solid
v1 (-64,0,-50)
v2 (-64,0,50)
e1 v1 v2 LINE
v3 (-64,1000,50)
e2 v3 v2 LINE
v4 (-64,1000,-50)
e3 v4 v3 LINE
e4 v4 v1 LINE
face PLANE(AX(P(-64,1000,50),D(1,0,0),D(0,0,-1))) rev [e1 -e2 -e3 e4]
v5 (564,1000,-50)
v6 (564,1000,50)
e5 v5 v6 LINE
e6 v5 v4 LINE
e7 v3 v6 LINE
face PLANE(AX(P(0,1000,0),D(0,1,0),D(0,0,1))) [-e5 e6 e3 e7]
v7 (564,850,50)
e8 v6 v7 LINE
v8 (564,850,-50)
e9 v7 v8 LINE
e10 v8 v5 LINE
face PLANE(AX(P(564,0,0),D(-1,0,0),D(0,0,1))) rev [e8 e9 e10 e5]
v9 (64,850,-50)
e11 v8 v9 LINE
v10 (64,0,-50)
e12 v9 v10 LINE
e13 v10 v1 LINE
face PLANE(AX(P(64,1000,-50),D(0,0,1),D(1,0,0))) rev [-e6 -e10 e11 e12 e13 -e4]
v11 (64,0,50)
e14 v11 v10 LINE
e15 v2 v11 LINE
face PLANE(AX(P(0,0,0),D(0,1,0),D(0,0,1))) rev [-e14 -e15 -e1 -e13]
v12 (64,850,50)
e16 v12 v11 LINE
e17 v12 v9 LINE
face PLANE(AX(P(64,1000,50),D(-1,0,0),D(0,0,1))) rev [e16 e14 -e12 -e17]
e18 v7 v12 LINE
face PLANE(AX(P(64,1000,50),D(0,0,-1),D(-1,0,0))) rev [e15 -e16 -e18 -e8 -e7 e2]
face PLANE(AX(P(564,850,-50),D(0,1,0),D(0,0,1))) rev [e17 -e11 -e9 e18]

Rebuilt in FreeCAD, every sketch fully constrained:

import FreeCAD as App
import Part
import Sketcher

V = App.Vector
Q = App.Units.Quantity

doc = App.newDocument("Part")
body = doc.addObject("PartDesign::Body", "Body")

# Sketch on XZ plane
sketch1 = body.newObject("Sketcher::SketchObject", "Sketch")
sketch1.AttachmentSupport = (doc.getObject("XZ_Plane"), [""])
sketch1.MapMode = "FlatFace"
sketch1.addGeometry([
    Part.LineSegment(V(-64, -50, 0), V(-64, 50, 0)),
    Part.LineSegment(V(-64, 50, 0), V(64, 50, 0)),
    Part.LineSegment(V(64, 50, 0), V(64, -50, 0)),
    Part.LineSegment(V(64, -50, 0), V(-64, -50, 0)),
], False)
sketch1.addConstraint([
    Sketcher.Constraint("Coincident", 0, 2, 1, 1),
    Sketcher.Constraint("Coincident", 1, 2, 2, 1),
    Sketcher.Constraint("Coincident", 2, 2, 3, 1),
    Sketcher.Constraint("Coincident", 3, 2, 0, 1),
    Sketcher.Constraint("Vertical", 0),
    Sketcher.Constraint("Horizontal", 1),
    Sketcher.Constraint("Vertical", 2),
    Sketcher.Constraint("Horizontal", 3),
    Sketcher.Constraint("Symmetric", 0, 2, 2, 2, -1, 1),
    Sketcher.Constraint("DistanceX", 1, 1, 1, 2, Q("128 mm")),
    Sketcher.Constraint("DistanceY", 0, 1, 0, 2, Q("100 mm")),
])
pad1 = body.newObject("PartDesign::Pad", "Pad")
pad1.Profile = sketch1
pad1.Length = 1000
pad1.Reversed = True

# Sketch on YZ plane
sketch2 = body.newObject("Sketcher::SketchObject", "Sketch001")
sketch2.AttachmentSupport = (doc.getObject("YZ_Plane"), [""])
sketch2.MapMode = "FlatFace"
sketch2.AttachmentOffset = App.Placement(V(0, 0, 64), App.Rotation())
sketch2.addGeometry([
    Part.LineSegment(V(1000, 50, 0), V(850, 50, 0)),
    Part.LineSegment(V(850, 50, 0), V(850, -50, 0)),
    Part.LineSegment(V(850, -50, 0), V(1000, -50, 0)),
    Part.LineSegment(V(1000, -50, 0), V(1000, 50, 0)),
], False)
sketch2.addConstraint([
    Sketcher.Constraint("Coincident", 0, 2, 1, 1),
    Sketcher.Constraint("Coincident", 1, 2, 2, 1),
    Sketcher.Constraint("Coincident", 2, 2, 3, 1),
    Sketcher.Constraint("Coincident", 3, 2, 0, 1),
    Sketcher.Constraint("Horizontal", 0),
    Sketcher.Constraint("Vertical", 1),
    Sketcher.Constraint("Horizontal", 2),
    Sketcher.Constraint("Vertical", 3),
    Sketcher.Constraint("DistanceX", 0, 2, 0, 1, Q("150 mm")),
    Sketcher.Constraint("DistanceY", 1, 2, 1, 1, Q("100 mm")),
    Sketcher.Constraint("DistanceX", -1, 1, 0, 2, Q("850 mm")),
    Sketcher.Constraint("DistanceY", -1, 1, 0, 2, Q("50 mm")),
])
pad2 = body.newObject("PartDesign::Pad", "Pad001")
pad2.Profile = sketch2
pad2.Length = 500

doc.recompute()
